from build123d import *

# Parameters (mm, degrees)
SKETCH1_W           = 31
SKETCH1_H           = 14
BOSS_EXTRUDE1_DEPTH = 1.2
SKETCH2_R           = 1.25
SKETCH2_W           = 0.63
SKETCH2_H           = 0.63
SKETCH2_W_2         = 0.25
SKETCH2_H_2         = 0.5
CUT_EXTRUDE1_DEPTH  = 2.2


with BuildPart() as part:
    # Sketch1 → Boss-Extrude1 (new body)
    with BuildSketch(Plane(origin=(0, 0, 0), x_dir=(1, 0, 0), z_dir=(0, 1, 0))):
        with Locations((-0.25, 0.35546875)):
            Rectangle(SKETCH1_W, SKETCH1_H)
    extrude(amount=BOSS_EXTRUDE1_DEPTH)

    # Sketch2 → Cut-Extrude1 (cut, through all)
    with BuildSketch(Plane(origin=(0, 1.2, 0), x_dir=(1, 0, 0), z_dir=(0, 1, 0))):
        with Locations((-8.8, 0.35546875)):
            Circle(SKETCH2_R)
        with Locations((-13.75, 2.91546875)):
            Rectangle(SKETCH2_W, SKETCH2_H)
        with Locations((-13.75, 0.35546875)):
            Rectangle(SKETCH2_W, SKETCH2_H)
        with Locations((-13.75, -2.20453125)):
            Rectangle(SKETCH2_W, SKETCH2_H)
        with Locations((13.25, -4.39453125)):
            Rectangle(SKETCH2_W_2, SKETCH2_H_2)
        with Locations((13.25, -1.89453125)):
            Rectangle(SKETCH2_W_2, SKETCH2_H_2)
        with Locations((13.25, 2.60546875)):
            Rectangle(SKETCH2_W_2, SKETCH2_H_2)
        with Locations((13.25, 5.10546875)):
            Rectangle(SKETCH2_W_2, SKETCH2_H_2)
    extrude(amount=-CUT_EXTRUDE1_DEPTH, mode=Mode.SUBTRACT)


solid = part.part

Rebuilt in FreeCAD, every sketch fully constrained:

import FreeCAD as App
import Part
import Sketcher
from FreeCAD import Vector


def add_polygon(sketch, points):
    """Adds a closed chain of lines whose ends are joined by coincident constraints."""
    first, n = sketch.GeometryCount, len(points)
    for a, b in zip(points, points[1:] + points[:1]):
        sketch.addGeometry(Part.LineSegment(App.Vector(*a, 0), App.Vector(*b, 0)), False)
    for i in range(n):
        sketch.addConstraint(Sketcher.Constraint("Coincident", first + i, 2, first + (i + 1) % n, 1))

doc = App.newDocument("Part")
body = doc.addObject("PartDesign::Body", "Body")

# Sketch on XZ plane
sketch1 = body.newObject("Sketcher::SketchObject", "Sketch")
sketch1.AttachmentSupport = (doc.getObject("XZ_Plane"), [""])
sketch1.MapMode = "FlatFace"
add_polygon(sketch1, [(-16, -7), (-16, 7), (15, 7), (15, -7)])  # lines 0-3
sketch1.addConstraint(Sketcher.Constraint("Vertical", 0))
sketch1.addConstraint(Sketcher.Constraint("Horizontal", 1))
sketch1.addConstraint(Sketcher.Constraint("Vertical", 2))
sketch1.addConstraint(Sketcher.Constraint("Horizontal", 3))
sketch1.addConstraint(Sketcher.Constraint("DistanceX", 1, 1, 1, 2, 31.0))
sketch1.addConstraint(Sketcher.Constraint("DistanceY", 0, 1, 0, 2, 14.0))
sketch1.addConstraint(Sketcher.Constraint("DistanceX", 0, 2, -1, 1, 15.75))
sketch1.addConstraint(Sketcher.Constraint("DistanceY", -1, 1, 0, 2, 6.644531))
pad1 = body.newObject("PartDesign::Pad", "Pad")
pad1.Profile = sketch1
pad1.Length = 1.2
pad1.Reversed = True

# Sketch on XZ plane
sketch2 = body.newObject("Sketcher::SketchObject", "Sketch001")
sketch2.AttachmentSupport = (doc.getObject("XZ_Plane"), [""])
sketch2.MapMode = "FlatFace"
sketch2.AttachmentOffset = App.Placement(Vector(0, 0, -1.2), App.Rotation())
sketch2.addGeometry(Part.Circle(Vector(-8.8, -0.36, 0), Vector(0, 0, 1), 1.25), False)  # 0
add_polygon(sketch2, [(-14.06, -3.23), (-14.06, -2.6), (-13.44, -2.6), (-13.44, -3.23)])  # lines 1-4
add_polygon(sketch2, [(-14.06, -0.67), (-14.06, -0.04), (-13.44, -0.04), (-13.44, -0.67)])  # lines 5-8
add_polygon(sketch2, [(-14.06, 1.89), (-14.06, 2.52), (-13.44, 2.52), (-13.44, 1.89)])  # lines 9-12
add_polygon(sketch2, [(13.12, 4.14), (13.12, 4.64), (13.38, 4.64), (13.38, 4.14)])  # lines 13-16
add_polygon(sketch2, [(13.12, 1.64), (13.12, 2.14), (13.38, 2.14), (13.38, 1.64)])  # lines 17-20
add_polygon(sketch2, [(13.12, -2.86), (13.12, -2.36), (13.38, -2.36), (13.38, -2.86)])  # lines 21-24
add_polygon(sketch2, [(13.12, -5.36), (13.12, -4.86), (13.38, -4.86), (13.38, -5.36)])  # lines 25-28
sketch2.addConstraint(Sketcher.Constraint("Vertical", 1))
sketch2.addConstraint(Sketcher.Constraint("Horizontal", 2))
sketch2.addConstraint(Sketcher.Constraint("Vertical", 3))
sketch2.addConstraint(Sketcher.Constraint("Horizontal", 4))
sketch2.addConstraint(Sketcher.Constraint("Vertical", 5))
sketch2.addConstraint(Sketcher.Constraint("Horizontal", 6))
sketch2.addConstraint(Sketcher.Constraint("Vertical", 7))
sketch2.addConstraint(Sketcher.Constraint("Horizontal", 8))
sketch2.addConstraint(Sketcher.Constraint("Vertical", 9))
sketch2.addConstraint(Sketcher.Constraint("Horizontal", 10))
sketch2.addConstraint(Sketcher.Constraint("Vertical", 11))
sketch2.addConstraint(Sketcher.Constraint("Horizontal", 12))
sketch2.addConstraint(Sketcher.Constraint("Vertical", 13))
sketch2.addConstraint(Sketcher.Constraint("Horizontal", 14))
sketch2.addConstraint(Sketcher.Constraint("Vertical", 15))
sketch2.addConstraint(Sketcher.Constraint("Horizontal", 16))
sketch2.addConstraint(Sketcher.Constraint("Vertical", 17))
sketch2.addConstraint(Sketcher.Constraint("Horizontal", 18))
sketch2.addConstraint(Sketcher.Constraint("Vertical", 19))
sketch2.addConstraint(Sketcher.Constraint("Horizontal", 20))
sketch2.addConstraint(Sketcher.Constraint("Vertical", 21))
sketch2.addConstraint(Sketcher.Constraint("Horizontal", 22))
sketch2.addConstraint(Sketcher.Constraint("Vertical", 23))
sketch2.addConstraint(Sketcher.Constraint("Horizontal", 24))
sketch2.addConstraint(Sketcher.Constraint("Vertical", 25))
sketch2.addConstraint(Sketcher.Constraint("Horizontal", 26))
sketch2.addConstraint(Sketcher.Constraint("Vertical", 27))
sketch2.addConstraint(Sketcher.Constraint("Horizontal", 28))
sketch2.addConstraint(Sketcher.Constraint("Vertical", 4, 2, 5, 2))
sketch2.addConstraint(Sketcher.Constraint("Vertical", 3, 2, 6, 2))
sketch2.addConstraint(Sketcher.Constraint("Vertical", 8, 2, 9, 2))
sketch2.addConstraint(Sketcher.Constraint("Vertical", 7, 2, 10, 2))
sketch2.addConstraint(Sketcher.Constraint("Vertical", 16, 2, 17, 2))
sketch2.addConstraint(Sketcher.Constraint("Vertical", 15, 2, 18, 2))
sketch2.addConstraint(Sketcher.Constraint("Vertical", 20, 2, 21, 2))
sketch2.addConstraint(Sketcher.Constraint("Vertical", 19, 2, 22, 2))
sketch2.addConstraint(Sketcher.Constraint("Vertical", 24, 2, 25, 2))
sketch2.addConstraint(Sketcher.Constraint("Vertical", 23, 2, 26, 2))
sketch2.addConstraint(Sketcher.Constraint("Equal", 12, 1))
sketch2.addConstraint(Sketcher.Constraint("Equal", 3, 5))
sketch2.addConstraint(Sketcher.Constraint("Equal", 7, 9))
sketch2.addConstraint(Sketcher.Constraint("Equal", 15, 17))
sketch2.addConstraint(Sketcher.Constraint("Equal", 19, 21))
sketch2.addConstraint(Sketcher.Constraint("Equal", 23, 25))
sketch2.addConstraint(Sketcher.Constraint("Diameter", 0, 2.5))
sketch2.addConstraint(Sketcher.Constraint("DistanceY", 13, 1, 13, 2, 0.5))
sketch2.addConstraint(Sketcher.Constraint("DistanceY", 0, 3, 13, 2, 5.0))
sketch2.addConstraint(Sketcher.Constraint("DistanceY", 17, 2, 16, 2, 2.0))
sketch2.addConstraint(Sketcher.Constraint("DistanceY", 21, 2, 20, 2, 4.0))
sketch2.addConstraint(Sketcher.Constraint("DistanceY", 25, 2, 24, 2, 2.0))
sketch2.addConstraint(Sketcher.Constraint("DistanceX", 2, 1, 2, 2, 0.63))
sketch2.addConstraint(Sketcher.Constraint("DistanceX", 14, 1, 14, 2, 0.25))
sketch2.addConstraint(Sketcher.Constraint("DistanceX", 0, 3, -1, 1, 8.8))
sketch2.addConstraint(Sketcher.Constraint("DistanceY", 1, 2, 5, 2, 2.56))
sketch2.addConstraint(Sketcher.Constraint("DistanceY", 5, 2, 9, 2, 2.56))
sketch2.addConstraint(Sketcher.Constraint("DistanceX", 10, 2, 13, 2, 26.56))
sketch2.addConstraint(Sketcher.Constraint("DistanceX", 1, 2, -1, 1, 14.065))
sketch2.addConstraint(Sketcher.Constraint("DistanceY", 1, 2, 0, 3, 2.245))
sketch2.addConstraint(Sketcher.Constraint("DistanceY", 0, 3, -1, 1, 0.355469))
pocket1 = body.newObject("PartDesign::Pocket", "Pocket")
pocket1.Profile = sketch2
pocket1.Type = "ThroughAll"
pocket1.Reversed = True

doc.recompute()
